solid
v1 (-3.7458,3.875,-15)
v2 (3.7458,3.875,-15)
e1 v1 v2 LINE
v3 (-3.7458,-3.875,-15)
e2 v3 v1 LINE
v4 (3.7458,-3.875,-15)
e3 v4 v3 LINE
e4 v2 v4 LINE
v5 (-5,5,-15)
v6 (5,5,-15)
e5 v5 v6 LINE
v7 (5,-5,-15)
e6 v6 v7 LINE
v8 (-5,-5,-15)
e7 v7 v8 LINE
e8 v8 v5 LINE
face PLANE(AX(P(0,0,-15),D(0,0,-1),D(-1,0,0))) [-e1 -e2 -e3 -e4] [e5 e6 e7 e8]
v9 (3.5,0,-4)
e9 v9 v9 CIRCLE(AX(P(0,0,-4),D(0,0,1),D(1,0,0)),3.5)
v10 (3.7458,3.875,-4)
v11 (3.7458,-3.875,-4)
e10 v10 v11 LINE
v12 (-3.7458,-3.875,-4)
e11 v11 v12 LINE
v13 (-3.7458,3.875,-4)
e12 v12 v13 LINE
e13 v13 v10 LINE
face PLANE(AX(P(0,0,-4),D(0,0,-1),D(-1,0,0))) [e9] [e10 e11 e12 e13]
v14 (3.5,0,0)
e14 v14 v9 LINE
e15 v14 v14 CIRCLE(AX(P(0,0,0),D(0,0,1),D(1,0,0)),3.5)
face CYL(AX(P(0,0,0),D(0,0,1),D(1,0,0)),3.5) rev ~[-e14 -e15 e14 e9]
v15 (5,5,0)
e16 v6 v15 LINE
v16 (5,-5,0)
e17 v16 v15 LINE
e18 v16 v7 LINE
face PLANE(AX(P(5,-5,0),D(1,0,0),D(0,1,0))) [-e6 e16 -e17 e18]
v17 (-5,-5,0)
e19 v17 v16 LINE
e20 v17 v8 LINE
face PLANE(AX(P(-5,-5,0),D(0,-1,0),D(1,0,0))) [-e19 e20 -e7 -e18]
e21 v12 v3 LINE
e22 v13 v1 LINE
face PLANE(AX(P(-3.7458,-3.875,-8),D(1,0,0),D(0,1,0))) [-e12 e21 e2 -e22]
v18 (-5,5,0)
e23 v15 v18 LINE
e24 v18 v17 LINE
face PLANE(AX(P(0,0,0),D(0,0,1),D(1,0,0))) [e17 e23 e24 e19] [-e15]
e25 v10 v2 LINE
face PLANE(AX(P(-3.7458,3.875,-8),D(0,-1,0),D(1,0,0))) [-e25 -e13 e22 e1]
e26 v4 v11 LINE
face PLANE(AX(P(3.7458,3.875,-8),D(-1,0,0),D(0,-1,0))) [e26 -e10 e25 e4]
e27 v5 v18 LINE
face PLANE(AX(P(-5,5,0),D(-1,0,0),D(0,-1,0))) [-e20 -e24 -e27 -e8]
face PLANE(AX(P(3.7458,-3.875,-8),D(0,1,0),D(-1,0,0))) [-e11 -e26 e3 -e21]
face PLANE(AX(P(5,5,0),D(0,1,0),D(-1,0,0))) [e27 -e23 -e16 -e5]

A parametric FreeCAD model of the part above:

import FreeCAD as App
import Part
import Sketcher


def add_polygon(sketch, points):
    """Adds a closed chain of lines whose ends are joined by coincident constraints."""
    first, n = sketch.GeometryCount, len(points)
    for a, b in zip(points, points[1:] + points[:1]):
        sketch.addGeometry(Part.LineSegment(App.Vector(*a, 0), App.Vector(*b, 0)), False)
    for i in range(n):
        sketch.addConstraint(Sketcher.Constraint("Coincident", first + i, 2, first + (i + 1) % n, 1))

doc = App.newDocument("Part")
body = doc.addObject("PartDesign::Body", "Body")

# Sketch on XY plane
sketch1 = doc.addObject("Sketcher::SketchObject", "Sketch")
body.addObject(sketch1)
sketch1.AttachmentSupport = (doc.XY_Plane, [""])
sketch1.MapMode = "FlatFace"
add_polygon(sketch1, [(-5, -5), (5, -5), (5, 5), (-5, 5)])  # lines 0-3
sketch1.addConstraint([
    Sketcher.Constraint("Horizontal", 0),
    Sketcher.Constraint("Vertical", 1),
    Sketcher.Constraint("Horizontal", 2),
    Sketcher.Constraint("Vertical", 3),
    Sketcher.Constraint("Symmetric", 0, 2, 2, 2, -1, 1),
    Sketcher.Constraint("Equal", 2, 1),
    Sketcher.Constraint("DistanceX", 0, 1, 0, 2, 10.0),
])
pad1 = doc.addObject("PartDesign::Pad", "Pad")
body.addObject(pad1)
pad1.Profile = sketch1
pad1.Length = 8
pad1.Reversed = True

# Sketch on XY plane
sketch2 = doc.addObject("Sketcher::SketchObject", "Sketch001")
body.addObject(sketch2)
sketch2.AttachmentSupport = (doc.XY_Plane, [""])
sketch2.MapMode = "FlatFace"
sketch2.addGeometry(Part.Circle(App.Vector(0, 0, 0), App.Vector(0, 0, 1), 3.5), False)
sketch2.addConstraint([
    Sketcher.Constraint("Coincident", 0, 3, -1, 1),
    Sketcher.Constraint("Diameter", 0, 7.0),
])
pocket1 = doc.addObject("PartDesign::Pocket", "Pocket")
body.addObject(pocket1)
pocket1.Profile = sketch2
pocket1.Length = 71.7561
pocket1.Midplane = True

# Sketch on XY plane
sketch3 = doc.addObject("Sketcher::SketchObject", "Sketch002")
body.addObject(sketch3)
sketch3.AttachmentSupport = (doc.XY_Plane, [""])
sketch3.MapMode = "FlatFace"
sketch3.AttachmentOffset = App.Placement(App.Vector(0, 0, -8), App.Rotation())
add_polygon(sketch3, [(5, 5), (5, -5), (-5, -5), (-5, 5)])  # lines 0-3
add_polygon(sketch3, [(-4, 4), (-4, -4), (4, -4), (4, 4)])  # lines 4-7
sketch3.addConstraint([
    Sketcher.Constraint("Vertical", 0),
    Sketcher.Constraint("Horizontal", 1),
    Sketcher.Constraint("Vertical", 2),
    Sketcher.Constraint("Horizontal", 3),
    Sketcher.Constraint("Vertical", 4),
    Sketcher.Constraint("Horizontal", 5),
    Sketcher.Constraint("Vertical", 6),
    Sketcher.Constraint("Horizontal", 7),
    Sketcher.Constraint("Symmetric", 0, 2, 2, 2, -1, 1),
    Sketcher.Constraint("Symmetric", 4, 2, 6, 2, -1, 1),
    Sketcher.Constraint("Equal", 3, 0),
    Sketcher.Constraint("DistanceX", 1, 2, 1, 1, 10.0),
    Sketcher.Constraint("DistanceY", 4, 2, 4, 1, 7.75),
    Sketcher.Constraint("DistanceX", 5, 1, 5, 2, 7.4916),
])
pad2 = doc.addObject("PartDesign::Pad", "Pad001")
body.addObject(pad2)
pad2.Profile = sketch3
pad2.Length = 7
pad2.Reversed = True

# Sketch on XY plane
sketch4 = doc.addObject("Sketcher::SketchObject", "Sketch003")
body.addObject(sketch4)
sketch4.AttachmentSupport = (doc.XY_Plane, [""])
sketch4.MapMode = "FlatFace"
sketch4.AttachmentOffset = App.Placement(App.Vector(0, 0, -8), App.Rotation())
add_polygon(sketch4, [(4, 4), (4, -4), (-4, -4), (-4, 4)])  # lines 0-3
sketch4.addConstraint([
    Sketcher.Constraint("Vertical", 0),
    Sketcher.Constraint("Horizontal", 1),
    Sketcher.Constraint("Vertical", 2),
    Sketcher.Constraint("Horizontal", 3),
    Sketcher.Constraint("Symmetric", 0, 2, 2, 2, -1, 1),
    Sketcher.Constraint("DistanceY", 0, 2, 0, 1, 7.75),
    Sketcher.Constraint("DistanceX", 1, 2, 1, 1, 7.4916),
])
pocket2 = doc.addObject("PartDesign::Pocket", "Pocket001")
body.addObject(pocket2)
pocket2.Profile = sketch4
pocket2.Length = 8
pocket2.Midplane = True

doc.recompute()
